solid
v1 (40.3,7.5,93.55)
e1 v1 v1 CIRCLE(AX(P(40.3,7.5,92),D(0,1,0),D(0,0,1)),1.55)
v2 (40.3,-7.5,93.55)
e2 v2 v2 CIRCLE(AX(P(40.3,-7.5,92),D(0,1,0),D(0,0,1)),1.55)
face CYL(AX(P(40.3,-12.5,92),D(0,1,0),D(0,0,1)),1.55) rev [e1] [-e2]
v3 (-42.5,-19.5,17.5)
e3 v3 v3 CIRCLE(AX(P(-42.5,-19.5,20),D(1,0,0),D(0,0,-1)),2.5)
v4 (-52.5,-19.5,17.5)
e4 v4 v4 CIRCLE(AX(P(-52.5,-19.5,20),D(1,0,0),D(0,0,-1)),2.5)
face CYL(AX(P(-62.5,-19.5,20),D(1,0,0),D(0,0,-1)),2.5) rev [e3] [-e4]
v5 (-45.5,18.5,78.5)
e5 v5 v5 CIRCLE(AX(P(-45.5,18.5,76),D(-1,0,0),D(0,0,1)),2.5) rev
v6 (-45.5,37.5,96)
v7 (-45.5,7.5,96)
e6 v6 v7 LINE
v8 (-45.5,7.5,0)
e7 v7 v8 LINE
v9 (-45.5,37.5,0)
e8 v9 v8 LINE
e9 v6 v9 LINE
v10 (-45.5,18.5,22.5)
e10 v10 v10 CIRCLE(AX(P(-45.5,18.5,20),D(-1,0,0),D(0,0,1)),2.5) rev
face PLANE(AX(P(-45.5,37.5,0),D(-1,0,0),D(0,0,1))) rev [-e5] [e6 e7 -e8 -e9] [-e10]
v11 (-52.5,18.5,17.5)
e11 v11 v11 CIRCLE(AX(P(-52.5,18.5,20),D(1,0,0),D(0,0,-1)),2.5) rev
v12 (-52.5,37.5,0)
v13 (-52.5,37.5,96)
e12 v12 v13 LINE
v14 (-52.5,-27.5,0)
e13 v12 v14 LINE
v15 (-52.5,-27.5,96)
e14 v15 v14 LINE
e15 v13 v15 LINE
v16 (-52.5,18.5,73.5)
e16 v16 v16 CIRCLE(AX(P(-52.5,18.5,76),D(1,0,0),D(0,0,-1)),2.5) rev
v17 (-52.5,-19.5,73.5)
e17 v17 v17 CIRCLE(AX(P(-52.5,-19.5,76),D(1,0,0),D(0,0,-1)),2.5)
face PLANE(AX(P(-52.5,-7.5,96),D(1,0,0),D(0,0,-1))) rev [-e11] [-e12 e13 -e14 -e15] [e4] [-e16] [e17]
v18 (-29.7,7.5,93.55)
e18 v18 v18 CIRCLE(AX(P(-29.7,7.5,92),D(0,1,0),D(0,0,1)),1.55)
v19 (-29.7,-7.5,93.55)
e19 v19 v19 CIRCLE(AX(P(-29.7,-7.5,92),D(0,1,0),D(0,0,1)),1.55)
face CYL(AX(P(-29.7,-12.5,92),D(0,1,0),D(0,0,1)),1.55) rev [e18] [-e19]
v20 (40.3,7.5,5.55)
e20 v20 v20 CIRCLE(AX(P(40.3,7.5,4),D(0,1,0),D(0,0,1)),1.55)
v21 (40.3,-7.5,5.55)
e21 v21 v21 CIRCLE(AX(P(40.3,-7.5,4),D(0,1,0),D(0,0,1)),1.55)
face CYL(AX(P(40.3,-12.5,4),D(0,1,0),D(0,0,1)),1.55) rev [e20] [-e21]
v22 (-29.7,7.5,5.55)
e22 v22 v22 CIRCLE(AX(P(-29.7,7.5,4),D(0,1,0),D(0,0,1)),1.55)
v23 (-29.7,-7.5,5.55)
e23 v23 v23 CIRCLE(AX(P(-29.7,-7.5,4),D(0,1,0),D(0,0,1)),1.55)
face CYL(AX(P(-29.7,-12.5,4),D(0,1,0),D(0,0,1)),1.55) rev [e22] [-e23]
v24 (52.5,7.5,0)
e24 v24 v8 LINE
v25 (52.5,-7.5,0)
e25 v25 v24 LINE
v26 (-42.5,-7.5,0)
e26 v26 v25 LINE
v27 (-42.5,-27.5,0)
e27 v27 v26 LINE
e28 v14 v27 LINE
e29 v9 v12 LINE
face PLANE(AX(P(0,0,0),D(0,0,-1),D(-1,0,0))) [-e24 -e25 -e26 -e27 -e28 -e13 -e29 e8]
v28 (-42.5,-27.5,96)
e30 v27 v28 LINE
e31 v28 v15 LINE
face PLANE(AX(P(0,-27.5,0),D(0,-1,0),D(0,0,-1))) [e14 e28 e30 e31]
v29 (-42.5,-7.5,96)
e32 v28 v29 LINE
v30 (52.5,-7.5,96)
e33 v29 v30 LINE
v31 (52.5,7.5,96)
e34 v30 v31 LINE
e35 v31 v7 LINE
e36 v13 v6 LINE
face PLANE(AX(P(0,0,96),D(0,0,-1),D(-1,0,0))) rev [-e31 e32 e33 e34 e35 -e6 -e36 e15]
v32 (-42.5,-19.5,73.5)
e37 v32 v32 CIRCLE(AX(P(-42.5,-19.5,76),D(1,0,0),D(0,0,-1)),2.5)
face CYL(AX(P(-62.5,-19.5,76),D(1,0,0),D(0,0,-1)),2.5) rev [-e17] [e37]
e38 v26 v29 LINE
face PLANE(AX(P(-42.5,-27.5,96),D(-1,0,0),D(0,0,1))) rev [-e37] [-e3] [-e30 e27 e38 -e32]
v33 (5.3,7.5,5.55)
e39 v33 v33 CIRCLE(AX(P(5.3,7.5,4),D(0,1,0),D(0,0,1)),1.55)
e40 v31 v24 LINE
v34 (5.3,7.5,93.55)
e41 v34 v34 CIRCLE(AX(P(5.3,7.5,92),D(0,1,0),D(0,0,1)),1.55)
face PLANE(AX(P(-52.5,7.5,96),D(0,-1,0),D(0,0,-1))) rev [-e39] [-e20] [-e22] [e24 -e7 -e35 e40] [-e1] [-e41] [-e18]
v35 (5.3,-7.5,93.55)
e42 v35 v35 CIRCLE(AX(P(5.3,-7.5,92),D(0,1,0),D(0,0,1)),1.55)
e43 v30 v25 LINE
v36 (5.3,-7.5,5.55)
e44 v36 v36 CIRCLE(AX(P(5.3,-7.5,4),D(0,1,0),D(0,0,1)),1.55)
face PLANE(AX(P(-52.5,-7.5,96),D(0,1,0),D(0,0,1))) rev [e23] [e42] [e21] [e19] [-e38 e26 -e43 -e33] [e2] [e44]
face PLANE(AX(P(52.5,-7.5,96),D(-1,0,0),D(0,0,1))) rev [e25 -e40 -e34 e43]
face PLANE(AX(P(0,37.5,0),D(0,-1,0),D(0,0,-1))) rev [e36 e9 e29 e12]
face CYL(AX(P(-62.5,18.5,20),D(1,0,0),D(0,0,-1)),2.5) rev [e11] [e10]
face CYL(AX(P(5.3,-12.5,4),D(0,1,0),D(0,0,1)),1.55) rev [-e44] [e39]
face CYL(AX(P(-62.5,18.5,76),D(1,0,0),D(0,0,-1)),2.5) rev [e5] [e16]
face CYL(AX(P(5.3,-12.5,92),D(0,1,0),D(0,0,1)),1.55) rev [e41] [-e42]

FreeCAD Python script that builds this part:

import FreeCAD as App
import Part
import Sketcher

V = App.Vector


def add_polygon(sketch, points):
    """Adds a closed chain of lines whose ends are joined by coincident constraints."""
    first, n = sketch.GeometryCount, len(points)
    for a, b in zip(points, points[1:] + points[:1]):
        sketch.addGeometry(Part.LineSegment(App.Vector(*a, 0), App.Vector(*b, 0)), False)
    for i in range(n):
        sketch.addConstraint(Sketcher.Constraint("Coincident", first + i, 2, first + (i + 1) % n, 1))

doc = App.newDocument("Part")
params = doc.addObject("Spreadsheet::Sheet", "Params")
for row, (alias, value) in enumerate([
    ("sketch1_width", "105 mm"),
    ("sketch1_height", "15 mm"),
    ("pad1_length", "96 mm"),
    ("sketch2_width", "7 mm"),
    ("sketch2_height", "96 mm"),
    ("pad2_length", "30 mm"),
    ("sketch3_width", "10 mm"),
    ("sketch3_height", "96 mm"),
    ("pad3_length", "20 mm"),
    ("sketch4_diameter", "3.1 mm"),
    ("pocket1_length", "20 mm"),
    ("sketch5_diameter", "5 mm"),
    ("pocket2_length", "20 mm"),
], start=1):
    params.set(f"A{row}", alias)
    params.set(f"B{row}", "=" + value)
    params.setAlias(f"B{row}", alias)

body = doc.addObject("PartDesign::Body", "Body")

sketch1 = body.newObject("Sketcher::SketchObject", "Sketch")
sketch1.AttachmentSupport = (doc.getObject("XY_Plane"), [""])
sketch1.MapMode = "FlatFace"
add_polygon(sketch1, [(-52, 8), (-52, -8), (52, -8), (52, 8)])
sketch1.addConstraint(Sketcher.Constraint("Vertical", 0))
sketch1.addConstraint(Sketcher.Constraint("Horizontal", 1))
sketch1.addConstraint(Sketcher.Constraint("Vertical", 2))
sketch1.addConstraint(Sketcher.Constraint("Horizontal", 3))
sketch1.addConstraint(Sketcher.Constraint("Symmetric", 0, 2, 2, 2, -1, 1))
sketch1.addConstraint(Sketcher.Constraint("DistanceX", 1, 1, 1, 2, 105.0))
sketch1.addConstraint(Sketcher.Constraint("DistanceY", 0, 2, 0, 1, 15.0))
sketch1.setExpression("Constraints[9]", "Params.sketch1_width")
sketch1.setExpression("Constraints[10]", "Params.sketch1_height")
pad1 = body.newObject("PartDesign::Pad", "Pad")
pad1.Profile = sketch1
pad1.setExpression("Length", "Params.pad1_length")

sketch2 = body.newObject("Sketcher::SketchObject", "Sketch001")
sketch2.AttachmentSupport = (doc.getObject("XZ_Plane"), [""])
sketch2.MapMode = "FlatFace"
sketch2.AttachmentOffset = App.Placement(V(0, 0, -7.5), App.Rotation())
add_polygon(sketch2, [(-52, 0), (-52, 96), (-46, 96), (-46, 0)])
sketch2.addConstraint(Sketcher.Constraint("Vertical", 0))
sketch2.addConstraint(Sketcher.Constraint("Horizontal", 1))
sketch2.addConstraint(Sketcher.Constraint("Vertical", 2))
sketch2.addConstraint(Sketcher.Constraint("Horizontal", 3))
sketch2.addConstraint(Sketcher.Constraint("PointOnObject", 2, 2, -1))
sketch2.addConstraint(Sketcher.Constraint("DistanceX", 1, 1, 1, 2, 7.0))
sketch2.addConstraint(Sketcher.Constraint("DistanceY", 0, 1, 0, 2, 96.0))
sketch2.addConstraint(Sketcher.Constraint("DistanceX", 0, 2, -1, 1, 52.5))
sketch2.setExpression("Constraints[9]", "Params.sketch2_width")
sketch2.setExpression("Constraints[10]", "Params.sketch2_height")
pad2 = body.newObject("PartDesign::Pad", "Pad001")
pad2.Profile = sketch2
pad2.setExpression("Length", "Params.pad2_length")
pad2.Reversed = True

sketch3 = body.newObject("Sketcher::SketchObject", "Sketch002")
sketch3.AttachmentSupport = (doc.getObject("XZ_Plane"), [""])
sketch3.MapMode = "FlatFace"
sketch3.AttachmentOffset = App.Placement(V(0, 0, 7.5), App.Rotation())
add_polygon(sketch3, [(-52, 96), (-52, 0), (-42, 0), (-42, 96)])
sketch3.addConstraint(Sketcher.Constraint("Vertical", 0))
sketch3.addConstraint(Sketcher.Constraint("Horizontal", 1))
sketch3.addConstraint(Sketcher.Constraint("Vertical", 2))
sketch3.addConstraint(Sketcher.Constraint("Horizontal", 3))
sketch3.addConstraint(Sketcher.Constraint("PointOnObject", 0, 2, -1))
sketch3.addConstraint(Sketcher.Constraint("DistanceX", 1, 1, 1, 2, 10.0))
sketch3.addConstraint(Sketcher.Constraint("DistanceY", 0, 2, 0, 1, 96.0))
sketch3.addConstraint(Sketcher.Constraint("DistanceX", 0, 2, -1, 1, 52.5))
sketch3.setExpression("Constraints[9]", "Params.sketch3_width")
sketch3.setExpression("Constraints[10]", "Params.sketch3_height")
pad3 = body.newObject("PartDesign::Pad", "Pad002")
pad3.Profile = sketch3
pad3.setExpression("Length", "Params.pad3_length")

sketch4 = body.newObject("Sketcher::SketchObject", "Sketch003")
sketch4.AttachmentSupport = (doc.getObject("XZ_Plane"), [""])
sketch4.MapMode = "FlatFace"
sketch4.AttachmentOffset = App.Placement(V(0, 0, -7.5), App.Rotation())
sketch4.addGeometry(Part.Circle(V(40.3, 92, 0), V(0, 0, 1), 1.6), False)
sketch4.addGeometry(Part.Circle(V(40.3, 4, 0), V(0, 0, 1), 1.6), False)
sketch4.addGeometry(Part.Circle(V(5.3, 4, 0), V(0, 0, 1), 1.6), False)
sketch4.addGeometry(Part.Circle(V(5.3, 92, 0), V(0, 0, 1), 1.6), False)
sketch4.addGeometry(Part.Circle(V(-29.7, 4, 0), V(0, 0, 1), 1.6), False)
sketch4.addGeometry(Part.Circle(V(-29.7, 92, 0), V(0, 0, 1), 1.6), False)
sketch4.addConstraint(Sketcher.Constraint("Equal", 0, 1))
sketch4.addConstraint(Sketcher.Constraint("Equal", 1, 2))
sketch4.addConstraint(Sketcher.Constraint("Equal", 2, 3))
sketch4.addConstraint(Sketcher.Constraint("Equal", 3, 4))
sketch4.addConstraint(Sketcher.Constraint("Equal", 4, 5))
sketch4.addConstraint(Sketcher.Constraint("Horizontal", 1, 3, 2, 3))
sketch4.addConstraint(Sketcher.Constraint("Horizontal", 0, 3, 3, 3))
sketch4.addConstraint(Sketcher.Constraint("Horizontal", 2, 3, 4, 3))
sketch4.addConstraint(Sketcher.Constraint("Horizontal", 3, 3, 5, 3))
sketch4.addConstraint(Sketcher.Constraint("Vertical", 0, 3, 1, 3))
sketch4.addConstraint(Sketcher.Constraint("Vertical", 2, 3, 3, 3))
sketch4.addConstraint(Sketcher.Constraint("Vertical", 4, 3, 5, 3))
sketch4.addConstraint(Sketcher.Constraint("Diameter", 0, 3.1))
sketch4.addConstraint(Sketcher.Constraint("DistanceY", -1, 1, 0, 3, 92.0))
sketch4.addConstraint(Sketcher.Constraint("DistanceY", -1, 1, 1, 3, 4.0))
sketch4.addConstraint(Sketcher.Constraint("DistanceX", 2, 3, 1, 3, 35.0))
sketch4.addConstraint(Sketcher.Constraint("DistanceX", 4, 3, 2, 3, 35.0))
sketch4.addConstraint(Sketcher.Constraint("DistanceX", -1, 1, 0, 3, 40.3))
sketch4.setExpression("Constraints[12]", "Params.sketch4_diameter")
pocket1 = body.newObject("PartDesign::Pocket", "Pocket")
pocket1.Profile = sketch4
pocket1.setExpression("Length", "Params.pocket1_length")
pocket1.Reversed = True

sketch5 = body.newObject("Sketcher::SketchObject", "Sketch004")
sketch5.AttachmentSupport = (doc.getObject("YZ_Plane"), [""])
sketch5.MapMode = "FlatFace"
sketch5.AttachmentOffset = App.Placement(V(0, 0, -42.5), App.Rotation())
sketch5.addGeometry(Part.Circle(V(-19.5, 76, 0), V(0, 0, 1), 2.5), False)
sketch5.addGeometry(Part.Circle(V(-19.5, 20, 0), V(0, 0, 1), 2.5), False)
sketch5.addConstraint(Sketcher.Constraint("Equal", 0, 1))
sketch5.addConstraint(Sketcher.Constraint("Vertical", 0, 3, 1, 3))
sketch5.addConstraint(Sketcher.Constraint("Diameter", 0, 5.0))
sketch5.addConstraint(Sketcher.Constraint("DistanceY", -1, 1, 0, 3, 76.0))
sketch5.addConstraint(Sketcher.Constraint("DistanceY", -1, 1, 1, 3, 20.0))
sketch5.addConstraint(Sketcher.Constraint("DistanceX", 0, 3, -1, 1, 19.5))
sketch5.setExpression("Constraints[2]", "Params.sketch5_diameter")
pocket2 = body.newObject("PartDesign::Pocket", "Pocket001")
pocket2.Profile = sketch5
pocket2.setExpression("Length", "Params.pocket2_length")
doc.recompute()

datumplane = body.newObject("PartDesign::Plane", "DatumPlane")
datumplane.AttachmentSupport = (doc.getObject("XZ_Plane"), [""])
datumplane.MapMode = "FlatFace"
datumplane.AttachmentOffset = App.Placement(V(0, 0, 0.5), App.Rotation())
mirrored = body.newObject("PartDesign::Mirrored", "Mirrored")
mirrored.Originals = [pocket2]
mirrored.MirrorPlane = (datumplane, [""])
body.Tip = mirrored

doc.recompute()
